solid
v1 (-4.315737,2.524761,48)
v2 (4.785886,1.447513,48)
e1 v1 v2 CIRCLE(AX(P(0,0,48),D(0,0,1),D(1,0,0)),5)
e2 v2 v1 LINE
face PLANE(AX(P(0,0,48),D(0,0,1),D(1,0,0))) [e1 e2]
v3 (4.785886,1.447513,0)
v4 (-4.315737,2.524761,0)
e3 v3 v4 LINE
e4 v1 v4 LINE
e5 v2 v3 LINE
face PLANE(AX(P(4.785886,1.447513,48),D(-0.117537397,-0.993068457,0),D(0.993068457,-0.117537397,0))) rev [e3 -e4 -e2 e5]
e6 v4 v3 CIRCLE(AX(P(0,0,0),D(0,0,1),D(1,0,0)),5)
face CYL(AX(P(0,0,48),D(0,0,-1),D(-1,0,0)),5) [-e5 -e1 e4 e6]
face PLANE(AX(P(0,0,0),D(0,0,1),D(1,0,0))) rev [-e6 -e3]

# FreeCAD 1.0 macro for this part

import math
import FreeCAD as App
import Part
import Sketcher

V = App.Vector
Q = App.Units.Quantity

doc = App.newDocument("Part")
body = doc.addObject("PartDesign::Body", "Body")

# Sketch on XY plane
sketch1 = body.newObject("Sketcher::SketchObject", "Sketch")
sketch1.AttachmentSupport = (doc.getObject("XY_Plane"), [""])
sketch1.MapMode = "FlatFace"
sketch1.addGeometry(Part.LineSegment(V(5, 1, 0), V(-4, 3, 0)), False)
sketch1.addGeometry(Part.ArcOfCircle(Part.Circle(V(0, 0, 0), V(0, 0, 1), 5), math.radians(150), math.radians(377)), False)
sketch1.addConstraint(Sketcher.Constraint("Coincident", 0, 1, 1, 2))
sketch1.addConstraint(Sketcher.Constraint("Coincident", 1, 1, 0, 2))
sketch1.addConstraint(Sketcher.Constraint("Coincident", 1, 3, -1, 1))
sketch1.addConstraint(Sketcher.Constraint("Radius", 1, 5.0))
sketch1.addConstraint(Sketcher.Constraint("Angle", 0, Q("173.25 deg")))
sketch1.addConstraint(Sketcher.Constraint("Distance", 0, 9.165151))
pad1 = body.newObject("PartDesign::Pad", "Pad")
pad1.Profile = sketch1
pad1.Length = 48

doc.recompute()
